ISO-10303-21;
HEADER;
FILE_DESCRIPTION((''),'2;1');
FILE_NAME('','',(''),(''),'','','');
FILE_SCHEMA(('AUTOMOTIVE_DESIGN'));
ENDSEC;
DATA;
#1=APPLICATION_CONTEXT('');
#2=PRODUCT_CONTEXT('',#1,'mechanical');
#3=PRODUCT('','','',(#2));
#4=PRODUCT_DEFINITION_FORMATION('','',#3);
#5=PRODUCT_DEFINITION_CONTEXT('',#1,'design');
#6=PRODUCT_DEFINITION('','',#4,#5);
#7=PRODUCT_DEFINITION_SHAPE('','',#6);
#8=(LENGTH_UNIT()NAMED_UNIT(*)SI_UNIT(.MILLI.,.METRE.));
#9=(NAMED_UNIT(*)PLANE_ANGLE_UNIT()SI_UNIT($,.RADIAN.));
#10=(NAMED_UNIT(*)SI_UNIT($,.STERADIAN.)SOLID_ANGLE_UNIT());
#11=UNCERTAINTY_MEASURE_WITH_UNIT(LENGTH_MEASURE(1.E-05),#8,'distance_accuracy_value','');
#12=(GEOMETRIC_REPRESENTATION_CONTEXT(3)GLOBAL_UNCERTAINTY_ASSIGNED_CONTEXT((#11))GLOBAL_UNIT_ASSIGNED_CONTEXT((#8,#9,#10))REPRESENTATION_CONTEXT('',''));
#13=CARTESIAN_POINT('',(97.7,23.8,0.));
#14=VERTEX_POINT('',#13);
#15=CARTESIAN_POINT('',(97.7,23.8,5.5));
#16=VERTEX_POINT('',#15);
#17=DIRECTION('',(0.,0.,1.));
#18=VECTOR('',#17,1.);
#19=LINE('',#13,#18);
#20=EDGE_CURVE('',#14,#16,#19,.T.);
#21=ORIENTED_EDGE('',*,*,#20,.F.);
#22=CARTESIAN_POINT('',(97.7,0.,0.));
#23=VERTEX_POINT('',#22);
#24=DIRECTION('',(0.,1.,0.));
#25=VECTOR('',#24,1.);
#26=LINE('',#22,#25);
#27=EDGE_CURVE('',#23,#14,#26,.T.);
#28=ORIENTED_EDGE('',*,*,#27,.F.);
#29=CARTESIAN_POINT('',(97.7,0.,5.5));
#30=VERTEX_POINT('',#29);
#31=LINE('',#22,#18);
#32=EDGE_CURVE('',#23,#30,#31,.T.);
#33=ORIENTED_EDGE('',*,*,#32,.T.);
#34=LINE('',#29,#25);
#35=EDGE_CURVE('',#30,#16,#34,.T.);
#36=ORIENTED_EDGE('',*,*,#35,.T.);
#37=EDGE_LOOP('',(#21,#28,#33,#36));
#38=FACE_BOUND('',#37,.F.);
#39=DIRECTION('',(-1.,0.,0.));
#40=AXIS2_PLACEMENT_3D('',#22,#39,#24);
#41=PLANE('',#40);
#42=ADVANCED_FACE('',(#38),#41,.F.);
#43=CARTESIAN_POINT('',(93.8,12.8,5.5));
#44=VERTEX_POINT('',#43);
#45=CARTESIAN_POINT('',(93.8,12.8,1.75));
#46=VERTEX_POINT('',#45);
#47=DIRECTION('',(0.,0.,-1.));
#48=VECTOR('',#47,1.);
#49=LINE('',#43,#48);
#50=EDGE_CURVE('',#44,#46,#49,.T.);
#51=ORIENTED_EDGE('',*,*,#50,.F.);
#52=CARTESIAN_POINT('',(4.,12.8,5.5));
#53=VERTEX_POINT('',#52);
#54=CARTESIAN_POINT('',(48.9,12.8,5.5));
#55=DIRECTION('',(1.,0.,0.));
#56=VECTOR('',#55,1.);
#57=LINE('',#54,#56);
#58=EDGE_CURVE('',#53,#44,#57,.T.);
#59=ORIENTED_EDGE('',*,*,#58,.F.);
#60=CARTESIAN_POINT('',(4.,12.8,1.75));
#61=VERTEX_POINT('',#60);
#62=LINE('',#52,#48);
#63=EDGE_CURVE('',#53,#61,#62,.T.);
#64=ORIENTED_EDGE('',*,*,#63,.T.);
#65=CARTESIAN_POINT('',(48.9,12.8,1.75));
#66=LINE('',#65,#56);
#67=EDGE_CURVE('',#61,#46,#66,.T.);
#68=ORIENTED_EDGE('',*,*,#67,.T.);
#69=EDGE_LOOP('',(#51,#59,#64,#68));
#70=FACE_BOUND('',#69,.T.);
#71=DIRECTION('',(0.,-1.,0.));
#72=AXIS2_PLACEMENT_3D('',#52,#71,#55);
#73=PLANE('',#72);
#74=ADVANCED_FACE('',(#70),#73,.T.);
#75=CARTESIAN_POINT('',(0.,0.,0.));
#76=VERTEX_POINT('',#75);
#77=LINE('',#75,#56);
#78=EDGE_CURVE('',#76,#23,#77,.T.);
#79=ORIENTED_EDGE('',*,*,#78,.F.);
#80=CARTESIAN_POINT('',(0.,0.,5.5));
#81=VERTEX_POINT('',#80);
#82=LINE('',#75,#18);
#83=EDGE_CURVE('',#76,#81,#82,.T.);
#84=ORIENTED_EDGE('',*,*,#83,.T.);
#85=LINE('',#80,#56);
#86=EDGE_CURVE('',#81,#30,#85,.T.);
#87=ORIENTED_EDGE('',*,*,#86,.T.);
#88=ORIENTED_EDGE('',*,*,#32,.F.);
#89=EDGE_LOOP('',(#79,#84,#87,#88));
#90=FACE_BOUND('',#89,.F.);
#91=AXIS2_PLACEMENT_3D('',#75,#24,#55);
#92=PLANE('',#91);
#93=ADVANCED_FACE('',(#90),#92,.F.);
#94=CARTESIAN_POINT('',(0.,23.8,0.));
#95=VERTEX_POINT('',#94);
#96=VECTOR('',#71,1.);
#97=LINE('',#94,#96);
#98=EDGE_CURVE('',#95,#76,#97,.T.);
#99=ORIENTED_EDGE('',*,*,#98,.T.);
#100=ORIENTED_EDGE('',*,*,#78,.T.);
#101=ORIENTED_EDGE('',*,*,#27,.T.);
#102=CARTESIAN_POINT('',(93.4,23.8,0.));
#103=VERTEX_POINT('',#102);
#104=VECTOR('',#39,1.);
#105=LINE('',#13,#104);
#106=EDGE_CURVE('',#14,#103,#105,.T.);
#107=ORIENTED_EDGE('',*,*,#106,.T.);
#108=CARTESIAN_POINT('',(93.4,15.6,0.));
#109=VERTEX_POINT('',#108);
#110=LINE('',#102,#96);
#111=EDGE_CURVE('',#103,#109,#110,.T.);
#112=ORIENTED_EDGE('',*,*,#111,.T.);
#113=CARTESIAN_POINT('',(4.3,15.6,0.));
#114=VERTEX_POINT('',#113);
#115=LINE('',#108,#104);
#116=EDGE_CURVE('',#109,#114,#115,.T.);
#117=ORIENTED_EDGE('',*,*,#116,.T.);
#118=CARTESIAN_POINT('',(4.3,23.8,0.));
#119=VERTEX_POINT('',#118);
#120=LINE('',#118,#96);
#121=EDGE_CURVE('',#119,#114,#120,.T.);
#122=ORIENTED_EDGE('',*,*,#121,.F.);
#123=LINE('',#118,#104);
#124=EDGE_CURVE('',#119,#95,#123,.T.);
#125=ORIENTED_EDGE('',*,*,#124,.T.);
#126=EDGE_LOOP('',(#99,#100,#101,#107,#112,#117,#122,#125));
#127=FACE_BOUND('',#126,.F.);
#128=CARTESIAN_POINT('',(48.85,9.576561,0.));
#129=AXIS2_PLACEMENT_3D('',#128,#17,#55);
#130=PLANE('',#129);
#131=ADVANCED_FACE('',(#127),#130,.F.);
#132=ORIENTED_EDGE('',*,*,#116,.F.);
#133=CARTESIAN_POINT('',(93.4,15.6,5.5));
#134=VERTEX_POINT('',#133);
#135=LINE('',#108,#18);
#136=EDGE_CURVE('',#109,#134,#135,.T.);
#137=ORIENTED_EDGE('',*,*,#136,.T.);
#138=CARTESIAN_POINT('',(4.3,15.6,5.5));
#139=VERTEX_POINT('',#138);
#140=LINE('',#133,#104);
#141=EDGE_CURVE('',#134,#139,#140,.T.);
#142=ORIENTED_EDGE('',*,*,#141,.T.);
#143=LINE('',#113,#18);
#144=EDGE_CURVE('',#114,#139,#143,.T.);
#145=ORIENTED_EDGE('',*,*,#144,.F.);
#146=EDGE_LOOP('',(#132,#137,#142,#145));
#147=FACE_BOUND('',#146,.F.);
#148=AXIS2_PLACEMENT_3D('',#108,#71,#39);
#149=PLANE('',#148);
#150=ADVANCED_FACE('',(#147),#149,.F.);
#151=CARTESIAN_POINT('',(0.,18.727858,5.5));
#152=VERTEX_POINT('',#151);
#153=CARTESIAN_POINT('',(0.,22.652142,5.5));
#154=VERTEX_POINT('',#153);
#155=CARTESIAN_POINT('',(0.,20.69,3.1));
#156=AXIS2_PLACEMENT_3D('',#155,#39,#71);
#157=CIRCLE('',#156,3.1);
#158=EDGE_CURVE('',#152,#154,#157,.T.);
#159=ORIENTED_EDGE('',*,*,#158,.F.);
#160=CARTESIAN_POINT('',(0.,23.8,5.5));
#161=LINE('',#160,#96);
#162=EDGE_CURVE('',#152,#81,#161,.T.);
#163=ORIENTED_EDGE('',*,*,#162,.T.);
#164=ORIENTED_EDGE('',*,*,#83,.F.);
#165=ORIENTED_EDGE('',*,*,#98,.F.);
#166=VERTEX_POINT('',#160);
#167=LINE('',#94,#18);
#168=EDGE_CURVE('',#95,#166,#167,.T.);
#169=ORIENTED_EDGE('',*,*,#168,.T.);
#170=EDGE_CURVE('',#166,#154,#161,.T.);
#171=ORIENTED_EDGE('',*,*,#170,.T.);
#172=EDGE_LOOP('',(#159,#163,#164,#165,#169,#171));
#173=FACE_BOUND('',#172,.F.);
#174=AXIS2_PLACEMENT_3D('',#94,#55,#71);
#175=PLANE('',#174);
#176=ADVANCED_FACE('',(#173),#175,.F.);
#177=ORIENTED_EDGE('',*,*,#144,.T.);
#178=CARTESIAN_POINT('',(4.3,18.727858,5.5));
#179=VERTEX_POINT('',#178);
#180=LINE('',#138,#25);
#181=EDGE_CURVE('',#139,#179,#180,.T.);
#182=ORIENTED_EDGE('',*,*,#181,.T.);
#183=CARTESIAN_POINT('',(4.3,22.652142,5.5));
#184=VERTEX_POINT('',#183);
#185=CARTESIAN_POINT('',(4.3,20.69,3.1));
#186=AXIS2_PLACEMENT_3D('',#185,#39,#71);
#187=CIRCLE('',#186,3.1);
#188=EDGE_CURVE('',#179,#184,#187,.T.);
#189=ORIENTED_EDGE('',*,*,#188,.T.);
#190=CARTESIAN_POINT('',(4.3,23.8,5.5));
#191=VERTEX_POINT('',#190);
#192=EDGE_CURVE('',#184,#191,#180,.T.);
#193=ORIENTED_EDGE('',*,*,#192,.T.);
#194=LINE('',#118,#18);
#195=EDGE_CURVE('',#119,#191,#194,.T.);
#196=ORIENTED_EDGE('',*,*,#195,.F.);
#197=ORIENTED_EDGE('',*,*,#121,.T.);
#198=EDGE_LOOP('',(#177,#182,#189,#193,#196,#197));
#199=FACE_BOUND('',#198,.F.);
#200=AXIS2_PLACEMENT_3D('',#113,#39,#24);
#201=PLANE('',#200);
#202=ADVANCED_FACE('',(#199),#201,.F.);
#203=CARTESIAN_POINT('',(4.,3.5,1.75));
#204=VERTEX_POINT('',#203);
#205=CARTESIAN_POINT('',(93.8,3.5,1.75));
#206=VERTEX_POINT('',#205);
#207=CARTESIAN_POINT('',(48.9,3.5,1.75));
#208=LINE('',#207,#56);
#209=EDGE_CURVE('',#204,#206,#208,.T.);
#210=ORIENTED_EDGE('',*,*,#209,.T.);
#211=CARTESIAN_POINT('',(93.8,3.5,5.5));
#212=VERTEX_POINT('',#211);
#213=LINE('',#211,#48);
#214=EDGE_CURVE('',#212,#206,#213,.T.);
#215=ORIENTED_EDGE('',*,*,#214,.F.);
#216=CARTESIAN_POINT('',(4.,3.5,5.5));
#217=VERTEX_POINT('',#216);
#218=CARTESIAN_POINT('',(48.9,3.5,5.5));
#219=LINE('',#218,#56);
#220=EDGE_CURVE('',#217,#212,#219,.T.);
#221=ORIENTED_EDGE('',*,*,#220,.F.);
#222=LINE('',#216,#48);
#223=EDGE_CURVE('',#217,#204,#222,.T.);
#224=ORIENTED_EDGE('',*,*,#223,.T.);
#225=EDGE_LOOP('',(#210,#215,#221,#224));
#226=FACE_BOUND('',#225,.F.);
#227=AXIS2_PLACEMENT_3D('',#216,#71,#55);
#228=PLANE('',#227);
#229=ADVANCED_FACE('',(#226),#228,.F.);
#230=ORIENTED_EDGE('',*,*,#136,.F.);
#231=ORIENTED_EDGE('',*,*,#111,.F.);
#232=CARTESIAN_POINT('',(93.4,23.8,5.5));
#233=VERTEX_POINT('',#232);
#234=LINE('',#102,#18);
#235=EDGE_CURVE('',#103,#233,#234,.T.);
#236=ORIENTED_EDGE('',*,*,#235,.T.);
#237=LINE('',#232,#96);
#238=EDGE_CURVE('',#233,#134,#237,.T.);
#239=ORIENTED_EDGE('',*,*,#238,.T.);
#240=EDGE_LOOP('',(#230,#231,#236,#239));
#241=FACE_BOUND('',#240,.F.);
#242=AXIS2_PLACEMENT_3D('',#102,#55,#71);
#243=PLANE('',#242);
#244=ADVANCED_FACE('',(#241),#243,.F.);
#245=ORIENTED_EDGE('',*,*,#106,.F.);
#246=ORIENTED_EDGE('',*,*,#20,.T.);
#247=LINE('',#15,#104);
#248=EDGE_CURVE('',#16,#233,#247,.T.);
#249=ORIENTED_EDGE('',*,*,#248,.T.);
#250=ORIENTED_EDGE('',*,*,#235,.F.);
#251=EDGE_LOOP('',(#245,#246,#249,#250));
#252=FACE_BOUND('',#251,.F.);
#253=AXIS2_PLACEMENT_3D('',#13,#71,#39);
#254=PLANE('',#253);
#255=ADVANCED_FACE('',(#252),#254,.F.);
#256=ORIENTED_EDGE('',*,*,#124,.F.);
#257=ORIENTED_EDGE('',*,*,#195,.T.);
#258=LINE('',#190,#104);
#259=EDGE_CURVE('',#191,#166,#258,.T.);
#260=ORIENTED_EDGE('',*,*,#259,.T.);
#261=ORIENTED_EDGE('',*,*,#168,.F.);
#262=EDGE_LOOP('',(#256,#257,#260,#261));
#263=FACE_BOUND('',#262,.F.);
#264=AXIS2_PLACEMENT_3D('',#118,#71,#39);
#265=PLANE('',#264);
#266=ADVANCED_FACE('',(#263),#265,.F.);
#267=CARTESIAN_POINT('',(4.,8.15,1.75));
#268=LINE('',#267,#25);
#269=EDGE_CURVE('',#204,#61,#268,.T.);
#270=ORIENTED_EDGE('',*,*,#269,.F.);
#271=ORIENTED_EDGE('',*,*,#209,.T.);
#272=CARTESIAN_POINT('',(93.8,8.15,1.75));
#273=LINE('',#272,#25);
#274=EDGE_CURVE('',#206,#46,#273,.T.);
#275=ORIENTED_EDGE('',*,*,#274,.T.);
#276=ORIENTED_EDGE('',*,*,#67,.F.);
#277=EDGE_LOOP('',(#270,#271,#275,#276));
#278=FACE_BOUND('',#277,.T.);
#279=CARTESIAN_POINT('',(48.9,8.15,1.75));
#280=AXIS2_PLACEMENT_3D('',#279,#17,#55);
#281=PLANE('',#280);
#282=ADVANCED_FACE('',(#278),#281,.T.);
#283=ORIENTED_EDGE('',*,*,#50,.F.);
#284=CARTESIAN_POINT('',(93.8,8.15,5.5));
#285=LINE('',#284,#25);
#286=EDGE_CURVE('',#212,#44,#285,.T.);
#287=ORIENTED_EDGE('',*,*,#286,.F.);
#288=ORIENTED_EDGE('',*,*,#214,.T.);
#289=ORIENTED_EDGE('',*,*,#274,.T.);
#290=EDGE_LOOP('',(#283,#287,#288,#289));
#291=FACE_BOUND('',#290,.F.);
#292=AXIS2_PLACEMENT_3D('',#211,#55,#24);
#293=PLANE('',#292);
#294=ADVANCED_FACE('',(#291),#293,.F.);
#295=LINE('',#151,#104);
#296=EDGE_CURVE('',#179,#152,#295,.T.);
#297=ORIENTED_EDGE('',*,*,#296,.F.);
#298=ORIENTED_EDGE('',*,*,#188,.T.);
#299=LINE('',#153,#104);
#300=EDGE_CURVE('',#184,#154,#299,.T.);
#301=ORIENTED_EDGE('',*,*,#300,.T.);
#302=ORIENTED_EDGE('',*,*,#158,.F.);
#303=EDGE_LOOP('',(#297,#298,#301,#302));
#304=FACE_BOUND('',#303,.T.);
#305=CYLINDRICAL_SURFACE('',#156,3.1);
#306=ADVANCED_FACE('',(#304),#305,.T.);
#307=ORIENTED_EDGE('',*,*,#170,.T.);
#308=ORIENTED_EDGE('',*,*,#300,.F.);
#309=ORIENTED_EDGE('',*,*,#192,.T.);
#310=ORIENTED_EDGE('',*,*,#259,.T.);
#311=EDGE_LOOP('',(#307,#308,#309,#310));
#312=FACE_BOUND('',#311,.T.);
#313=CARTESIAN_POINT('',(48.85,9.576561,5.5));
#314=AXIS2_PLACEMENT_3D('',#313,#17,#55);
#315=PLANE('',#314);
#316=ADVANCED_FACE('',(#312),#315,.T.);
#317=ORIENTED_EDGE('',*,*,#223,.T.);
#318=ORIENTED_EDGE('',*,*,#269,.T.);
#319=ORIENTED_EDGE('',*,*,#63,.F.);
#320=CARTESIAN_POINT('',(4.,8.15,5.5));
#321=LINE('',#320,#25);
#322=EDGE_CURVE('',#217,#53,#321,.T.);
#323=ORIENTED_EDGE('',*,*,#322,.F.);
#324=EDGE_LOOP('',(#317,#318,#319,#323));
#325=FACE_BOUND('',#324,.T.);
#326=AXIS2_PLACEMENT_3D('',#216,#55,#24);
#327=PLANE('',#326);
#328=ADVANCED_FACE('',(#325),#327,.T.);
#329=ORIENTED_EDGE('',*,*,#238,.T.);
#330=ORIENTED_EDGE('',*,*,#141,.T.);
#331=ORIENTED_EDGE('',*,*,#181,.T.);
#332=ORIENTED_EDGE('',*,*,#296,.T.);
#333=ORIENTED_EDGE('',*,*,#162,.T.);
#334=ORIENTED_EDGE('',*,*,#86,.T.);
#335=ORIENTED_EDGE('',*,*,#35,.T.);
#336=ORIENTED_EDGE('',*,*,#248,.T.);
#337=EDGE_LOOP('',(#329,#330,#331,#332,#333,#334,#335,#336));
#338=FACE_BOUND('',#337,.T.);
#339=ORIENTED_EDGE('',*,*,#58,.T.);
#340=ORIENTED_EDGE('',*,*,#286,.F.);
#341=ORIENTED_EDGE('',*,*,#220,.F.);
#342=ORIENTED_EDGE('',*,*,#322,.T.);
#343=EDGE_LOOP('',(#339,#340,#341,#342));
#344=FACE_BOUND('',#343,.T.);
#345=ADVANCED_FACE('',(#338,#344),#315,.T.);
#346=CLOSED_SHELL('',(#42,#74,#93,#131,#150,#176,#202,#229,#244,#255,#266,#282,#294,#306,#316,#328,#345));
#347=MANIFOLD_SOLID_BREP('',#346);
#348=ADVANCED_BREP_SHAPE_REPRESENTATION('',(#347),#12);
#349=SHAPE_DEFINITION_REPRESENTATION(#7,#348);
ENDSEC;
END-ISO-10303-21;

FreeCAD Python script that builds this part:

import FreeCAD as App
import Part
import Sketcher
from FreeCAD import Vector
Q = App.Units.Quantity


def add_polygon(sketch, points):
    """Adds a closed chain of lines whose ends are joined by coincident constraints."""
    first, n = sketch.GeometryCount, len(points)
    for a, b in zip(points, points[1:] + points[:1]):
        sketch.addGeometry(Part.LineSegment(App.Vector(*a, 0), App.Vector(*b, 0)), False)
    for i in range(n):
        sketch.addConstraint(Sketcher.Constraint("Coincident", first + i, 2, first + (i + 1) % n, 1))

doc = App.newDocument("Part")
body = doc.addObject("PartDesign::Body", "Body")

# Sketch on XY plane
sketch1 = doc.addObject("Sketcher::SketchObject", "Sketch")
body.addObject(sketch1)
sketch1.AttachmentSupport = (doc.XY_Plane, [""])
sketch1.MapMode = "FlatFace"
add_polygon(sketch1, [(0, 0), (97.7, 0), (97.7, 23.8), (93.4, 23.8), (93.4, 15.6), (4.3, 15.6), (4.3, 23.8), (0, 23.8)])  # lines 0-7
sketch1.addConstraint([
    Sketcher.Constraint("Horizontal", 0),
    Sketcher.Constraint("Vertical", 1),
    Sketcher.Constraint("Horizontal", 2),
    Sketcher.Constraint("Vertical", 3),
    Sketcher.Constraint("Horizontal", 4),
    Sketcher.Constraint("Vertical", 5),
    Sketcher.Constraint("Horizontal", 6),
    Sketcher.Constraint("Vertical", 7),
    Sketcher.Constraint("Coincident", 7, 2, -1, 1),
    Sketcher.Constraint("Horizontal", 2, 2, 5, 2),
    Sketcher.Constraint("Equal", 2, 6),
    Sketcher.Constraint("DistanceX", 0, 1, 0, 2, Q("97.7 mm")),
    Sketcher.Constraint("DistanceX", 2, 2, 2, 1, Q("4.3 mm")),
    Sketcher.Constraint("DistanceY", 1, 1, 1, 2, Q("23.8 mm")),
    Sketcher.Constraint("DistanceY", 3, 2, 3, 1, Q("8.2 mm")),
])
pad1 = doc.addObject("PartDesign::Pad", "Pad")
body.addObject(pad1)
pad1.Profile = sketch1
pad1.Length = 5.5

# Sketch on XY plane
sketch2 = doc.addObject("Sketcher::SketchObject", "Sketch001")
body.addObject(sketch2)
sketch2.AttachmentSupport = (doc.XY_Plane, [""])
sketch2.MapMode = "FlatFace"
sketch2.AttachmentOffset = App.Placement(Vector(0, 0, 5.5), App.Rotation())
add_polygon(sketch2, [(4, 13), (4, 4), (94, 4), (94, 13)])  # lines 0-3
sketch2.addConstraint([
    Sketcher.Constraint("Vertical", 0),
    Sketcher.Constraint("Horizontal", 1),
    Sketcher.Constraint("Vertical", 2),
    Sketcher.Constraint("Horizontal", 3),
    Sketcher.Constraint("DistanceX", 1, 1, 1, 2, Q("89.8 mm")),
    Sketcher.Constraint("DistanceY", 0, 2, 0, 1, Q("9.3 mm")),
    Sketcher.Constraint("DistanceX", -1, 1, 0, 2, Q("4 mm")),
    Sketcher.Constraint("DistanceY", -1, 1, 0, 2, Q("3.5 mm")),
])
pocket1 = doc.addObject("PartDesign::Pocket", "Pocket")
body.addObject(pocket1)
pocket1.Profile = sketch2
pocket1.Length = 3.75

# Sketch on YZ plane
sketch3 = doc.addObject("Sketcher::SketchObject", "Sketch002")
body.addObject(sketch3)
sketch3.AttachmentSupport = (doc.YZ_Plane, [""])
sketch3.MapMode = "FlatFace"
sketch3.addGeometry(Part.Circle(Vector(20.7, 3.1, 0), Vector(0, 0, 1), 3.1), False)
sketch3.addConstraint([
    Sketcher.Constraint("Diameter", 0, Q("6.2 mm")),
    Sketcher.Constraint("DistanceY", -1, 1, 0, 3, Q("3.1 mm")),
    Sketcher.Constraint("DistanceX", -1, 1, 0, 3, Q("20.69 mm")),
])
pad2 = doc.addObject("PartDesign::Pad", "Pad001")
body.addObject(pad2)
pad2.Profile = sketch3
pad2.Length = 4.3

doc.recompute()
